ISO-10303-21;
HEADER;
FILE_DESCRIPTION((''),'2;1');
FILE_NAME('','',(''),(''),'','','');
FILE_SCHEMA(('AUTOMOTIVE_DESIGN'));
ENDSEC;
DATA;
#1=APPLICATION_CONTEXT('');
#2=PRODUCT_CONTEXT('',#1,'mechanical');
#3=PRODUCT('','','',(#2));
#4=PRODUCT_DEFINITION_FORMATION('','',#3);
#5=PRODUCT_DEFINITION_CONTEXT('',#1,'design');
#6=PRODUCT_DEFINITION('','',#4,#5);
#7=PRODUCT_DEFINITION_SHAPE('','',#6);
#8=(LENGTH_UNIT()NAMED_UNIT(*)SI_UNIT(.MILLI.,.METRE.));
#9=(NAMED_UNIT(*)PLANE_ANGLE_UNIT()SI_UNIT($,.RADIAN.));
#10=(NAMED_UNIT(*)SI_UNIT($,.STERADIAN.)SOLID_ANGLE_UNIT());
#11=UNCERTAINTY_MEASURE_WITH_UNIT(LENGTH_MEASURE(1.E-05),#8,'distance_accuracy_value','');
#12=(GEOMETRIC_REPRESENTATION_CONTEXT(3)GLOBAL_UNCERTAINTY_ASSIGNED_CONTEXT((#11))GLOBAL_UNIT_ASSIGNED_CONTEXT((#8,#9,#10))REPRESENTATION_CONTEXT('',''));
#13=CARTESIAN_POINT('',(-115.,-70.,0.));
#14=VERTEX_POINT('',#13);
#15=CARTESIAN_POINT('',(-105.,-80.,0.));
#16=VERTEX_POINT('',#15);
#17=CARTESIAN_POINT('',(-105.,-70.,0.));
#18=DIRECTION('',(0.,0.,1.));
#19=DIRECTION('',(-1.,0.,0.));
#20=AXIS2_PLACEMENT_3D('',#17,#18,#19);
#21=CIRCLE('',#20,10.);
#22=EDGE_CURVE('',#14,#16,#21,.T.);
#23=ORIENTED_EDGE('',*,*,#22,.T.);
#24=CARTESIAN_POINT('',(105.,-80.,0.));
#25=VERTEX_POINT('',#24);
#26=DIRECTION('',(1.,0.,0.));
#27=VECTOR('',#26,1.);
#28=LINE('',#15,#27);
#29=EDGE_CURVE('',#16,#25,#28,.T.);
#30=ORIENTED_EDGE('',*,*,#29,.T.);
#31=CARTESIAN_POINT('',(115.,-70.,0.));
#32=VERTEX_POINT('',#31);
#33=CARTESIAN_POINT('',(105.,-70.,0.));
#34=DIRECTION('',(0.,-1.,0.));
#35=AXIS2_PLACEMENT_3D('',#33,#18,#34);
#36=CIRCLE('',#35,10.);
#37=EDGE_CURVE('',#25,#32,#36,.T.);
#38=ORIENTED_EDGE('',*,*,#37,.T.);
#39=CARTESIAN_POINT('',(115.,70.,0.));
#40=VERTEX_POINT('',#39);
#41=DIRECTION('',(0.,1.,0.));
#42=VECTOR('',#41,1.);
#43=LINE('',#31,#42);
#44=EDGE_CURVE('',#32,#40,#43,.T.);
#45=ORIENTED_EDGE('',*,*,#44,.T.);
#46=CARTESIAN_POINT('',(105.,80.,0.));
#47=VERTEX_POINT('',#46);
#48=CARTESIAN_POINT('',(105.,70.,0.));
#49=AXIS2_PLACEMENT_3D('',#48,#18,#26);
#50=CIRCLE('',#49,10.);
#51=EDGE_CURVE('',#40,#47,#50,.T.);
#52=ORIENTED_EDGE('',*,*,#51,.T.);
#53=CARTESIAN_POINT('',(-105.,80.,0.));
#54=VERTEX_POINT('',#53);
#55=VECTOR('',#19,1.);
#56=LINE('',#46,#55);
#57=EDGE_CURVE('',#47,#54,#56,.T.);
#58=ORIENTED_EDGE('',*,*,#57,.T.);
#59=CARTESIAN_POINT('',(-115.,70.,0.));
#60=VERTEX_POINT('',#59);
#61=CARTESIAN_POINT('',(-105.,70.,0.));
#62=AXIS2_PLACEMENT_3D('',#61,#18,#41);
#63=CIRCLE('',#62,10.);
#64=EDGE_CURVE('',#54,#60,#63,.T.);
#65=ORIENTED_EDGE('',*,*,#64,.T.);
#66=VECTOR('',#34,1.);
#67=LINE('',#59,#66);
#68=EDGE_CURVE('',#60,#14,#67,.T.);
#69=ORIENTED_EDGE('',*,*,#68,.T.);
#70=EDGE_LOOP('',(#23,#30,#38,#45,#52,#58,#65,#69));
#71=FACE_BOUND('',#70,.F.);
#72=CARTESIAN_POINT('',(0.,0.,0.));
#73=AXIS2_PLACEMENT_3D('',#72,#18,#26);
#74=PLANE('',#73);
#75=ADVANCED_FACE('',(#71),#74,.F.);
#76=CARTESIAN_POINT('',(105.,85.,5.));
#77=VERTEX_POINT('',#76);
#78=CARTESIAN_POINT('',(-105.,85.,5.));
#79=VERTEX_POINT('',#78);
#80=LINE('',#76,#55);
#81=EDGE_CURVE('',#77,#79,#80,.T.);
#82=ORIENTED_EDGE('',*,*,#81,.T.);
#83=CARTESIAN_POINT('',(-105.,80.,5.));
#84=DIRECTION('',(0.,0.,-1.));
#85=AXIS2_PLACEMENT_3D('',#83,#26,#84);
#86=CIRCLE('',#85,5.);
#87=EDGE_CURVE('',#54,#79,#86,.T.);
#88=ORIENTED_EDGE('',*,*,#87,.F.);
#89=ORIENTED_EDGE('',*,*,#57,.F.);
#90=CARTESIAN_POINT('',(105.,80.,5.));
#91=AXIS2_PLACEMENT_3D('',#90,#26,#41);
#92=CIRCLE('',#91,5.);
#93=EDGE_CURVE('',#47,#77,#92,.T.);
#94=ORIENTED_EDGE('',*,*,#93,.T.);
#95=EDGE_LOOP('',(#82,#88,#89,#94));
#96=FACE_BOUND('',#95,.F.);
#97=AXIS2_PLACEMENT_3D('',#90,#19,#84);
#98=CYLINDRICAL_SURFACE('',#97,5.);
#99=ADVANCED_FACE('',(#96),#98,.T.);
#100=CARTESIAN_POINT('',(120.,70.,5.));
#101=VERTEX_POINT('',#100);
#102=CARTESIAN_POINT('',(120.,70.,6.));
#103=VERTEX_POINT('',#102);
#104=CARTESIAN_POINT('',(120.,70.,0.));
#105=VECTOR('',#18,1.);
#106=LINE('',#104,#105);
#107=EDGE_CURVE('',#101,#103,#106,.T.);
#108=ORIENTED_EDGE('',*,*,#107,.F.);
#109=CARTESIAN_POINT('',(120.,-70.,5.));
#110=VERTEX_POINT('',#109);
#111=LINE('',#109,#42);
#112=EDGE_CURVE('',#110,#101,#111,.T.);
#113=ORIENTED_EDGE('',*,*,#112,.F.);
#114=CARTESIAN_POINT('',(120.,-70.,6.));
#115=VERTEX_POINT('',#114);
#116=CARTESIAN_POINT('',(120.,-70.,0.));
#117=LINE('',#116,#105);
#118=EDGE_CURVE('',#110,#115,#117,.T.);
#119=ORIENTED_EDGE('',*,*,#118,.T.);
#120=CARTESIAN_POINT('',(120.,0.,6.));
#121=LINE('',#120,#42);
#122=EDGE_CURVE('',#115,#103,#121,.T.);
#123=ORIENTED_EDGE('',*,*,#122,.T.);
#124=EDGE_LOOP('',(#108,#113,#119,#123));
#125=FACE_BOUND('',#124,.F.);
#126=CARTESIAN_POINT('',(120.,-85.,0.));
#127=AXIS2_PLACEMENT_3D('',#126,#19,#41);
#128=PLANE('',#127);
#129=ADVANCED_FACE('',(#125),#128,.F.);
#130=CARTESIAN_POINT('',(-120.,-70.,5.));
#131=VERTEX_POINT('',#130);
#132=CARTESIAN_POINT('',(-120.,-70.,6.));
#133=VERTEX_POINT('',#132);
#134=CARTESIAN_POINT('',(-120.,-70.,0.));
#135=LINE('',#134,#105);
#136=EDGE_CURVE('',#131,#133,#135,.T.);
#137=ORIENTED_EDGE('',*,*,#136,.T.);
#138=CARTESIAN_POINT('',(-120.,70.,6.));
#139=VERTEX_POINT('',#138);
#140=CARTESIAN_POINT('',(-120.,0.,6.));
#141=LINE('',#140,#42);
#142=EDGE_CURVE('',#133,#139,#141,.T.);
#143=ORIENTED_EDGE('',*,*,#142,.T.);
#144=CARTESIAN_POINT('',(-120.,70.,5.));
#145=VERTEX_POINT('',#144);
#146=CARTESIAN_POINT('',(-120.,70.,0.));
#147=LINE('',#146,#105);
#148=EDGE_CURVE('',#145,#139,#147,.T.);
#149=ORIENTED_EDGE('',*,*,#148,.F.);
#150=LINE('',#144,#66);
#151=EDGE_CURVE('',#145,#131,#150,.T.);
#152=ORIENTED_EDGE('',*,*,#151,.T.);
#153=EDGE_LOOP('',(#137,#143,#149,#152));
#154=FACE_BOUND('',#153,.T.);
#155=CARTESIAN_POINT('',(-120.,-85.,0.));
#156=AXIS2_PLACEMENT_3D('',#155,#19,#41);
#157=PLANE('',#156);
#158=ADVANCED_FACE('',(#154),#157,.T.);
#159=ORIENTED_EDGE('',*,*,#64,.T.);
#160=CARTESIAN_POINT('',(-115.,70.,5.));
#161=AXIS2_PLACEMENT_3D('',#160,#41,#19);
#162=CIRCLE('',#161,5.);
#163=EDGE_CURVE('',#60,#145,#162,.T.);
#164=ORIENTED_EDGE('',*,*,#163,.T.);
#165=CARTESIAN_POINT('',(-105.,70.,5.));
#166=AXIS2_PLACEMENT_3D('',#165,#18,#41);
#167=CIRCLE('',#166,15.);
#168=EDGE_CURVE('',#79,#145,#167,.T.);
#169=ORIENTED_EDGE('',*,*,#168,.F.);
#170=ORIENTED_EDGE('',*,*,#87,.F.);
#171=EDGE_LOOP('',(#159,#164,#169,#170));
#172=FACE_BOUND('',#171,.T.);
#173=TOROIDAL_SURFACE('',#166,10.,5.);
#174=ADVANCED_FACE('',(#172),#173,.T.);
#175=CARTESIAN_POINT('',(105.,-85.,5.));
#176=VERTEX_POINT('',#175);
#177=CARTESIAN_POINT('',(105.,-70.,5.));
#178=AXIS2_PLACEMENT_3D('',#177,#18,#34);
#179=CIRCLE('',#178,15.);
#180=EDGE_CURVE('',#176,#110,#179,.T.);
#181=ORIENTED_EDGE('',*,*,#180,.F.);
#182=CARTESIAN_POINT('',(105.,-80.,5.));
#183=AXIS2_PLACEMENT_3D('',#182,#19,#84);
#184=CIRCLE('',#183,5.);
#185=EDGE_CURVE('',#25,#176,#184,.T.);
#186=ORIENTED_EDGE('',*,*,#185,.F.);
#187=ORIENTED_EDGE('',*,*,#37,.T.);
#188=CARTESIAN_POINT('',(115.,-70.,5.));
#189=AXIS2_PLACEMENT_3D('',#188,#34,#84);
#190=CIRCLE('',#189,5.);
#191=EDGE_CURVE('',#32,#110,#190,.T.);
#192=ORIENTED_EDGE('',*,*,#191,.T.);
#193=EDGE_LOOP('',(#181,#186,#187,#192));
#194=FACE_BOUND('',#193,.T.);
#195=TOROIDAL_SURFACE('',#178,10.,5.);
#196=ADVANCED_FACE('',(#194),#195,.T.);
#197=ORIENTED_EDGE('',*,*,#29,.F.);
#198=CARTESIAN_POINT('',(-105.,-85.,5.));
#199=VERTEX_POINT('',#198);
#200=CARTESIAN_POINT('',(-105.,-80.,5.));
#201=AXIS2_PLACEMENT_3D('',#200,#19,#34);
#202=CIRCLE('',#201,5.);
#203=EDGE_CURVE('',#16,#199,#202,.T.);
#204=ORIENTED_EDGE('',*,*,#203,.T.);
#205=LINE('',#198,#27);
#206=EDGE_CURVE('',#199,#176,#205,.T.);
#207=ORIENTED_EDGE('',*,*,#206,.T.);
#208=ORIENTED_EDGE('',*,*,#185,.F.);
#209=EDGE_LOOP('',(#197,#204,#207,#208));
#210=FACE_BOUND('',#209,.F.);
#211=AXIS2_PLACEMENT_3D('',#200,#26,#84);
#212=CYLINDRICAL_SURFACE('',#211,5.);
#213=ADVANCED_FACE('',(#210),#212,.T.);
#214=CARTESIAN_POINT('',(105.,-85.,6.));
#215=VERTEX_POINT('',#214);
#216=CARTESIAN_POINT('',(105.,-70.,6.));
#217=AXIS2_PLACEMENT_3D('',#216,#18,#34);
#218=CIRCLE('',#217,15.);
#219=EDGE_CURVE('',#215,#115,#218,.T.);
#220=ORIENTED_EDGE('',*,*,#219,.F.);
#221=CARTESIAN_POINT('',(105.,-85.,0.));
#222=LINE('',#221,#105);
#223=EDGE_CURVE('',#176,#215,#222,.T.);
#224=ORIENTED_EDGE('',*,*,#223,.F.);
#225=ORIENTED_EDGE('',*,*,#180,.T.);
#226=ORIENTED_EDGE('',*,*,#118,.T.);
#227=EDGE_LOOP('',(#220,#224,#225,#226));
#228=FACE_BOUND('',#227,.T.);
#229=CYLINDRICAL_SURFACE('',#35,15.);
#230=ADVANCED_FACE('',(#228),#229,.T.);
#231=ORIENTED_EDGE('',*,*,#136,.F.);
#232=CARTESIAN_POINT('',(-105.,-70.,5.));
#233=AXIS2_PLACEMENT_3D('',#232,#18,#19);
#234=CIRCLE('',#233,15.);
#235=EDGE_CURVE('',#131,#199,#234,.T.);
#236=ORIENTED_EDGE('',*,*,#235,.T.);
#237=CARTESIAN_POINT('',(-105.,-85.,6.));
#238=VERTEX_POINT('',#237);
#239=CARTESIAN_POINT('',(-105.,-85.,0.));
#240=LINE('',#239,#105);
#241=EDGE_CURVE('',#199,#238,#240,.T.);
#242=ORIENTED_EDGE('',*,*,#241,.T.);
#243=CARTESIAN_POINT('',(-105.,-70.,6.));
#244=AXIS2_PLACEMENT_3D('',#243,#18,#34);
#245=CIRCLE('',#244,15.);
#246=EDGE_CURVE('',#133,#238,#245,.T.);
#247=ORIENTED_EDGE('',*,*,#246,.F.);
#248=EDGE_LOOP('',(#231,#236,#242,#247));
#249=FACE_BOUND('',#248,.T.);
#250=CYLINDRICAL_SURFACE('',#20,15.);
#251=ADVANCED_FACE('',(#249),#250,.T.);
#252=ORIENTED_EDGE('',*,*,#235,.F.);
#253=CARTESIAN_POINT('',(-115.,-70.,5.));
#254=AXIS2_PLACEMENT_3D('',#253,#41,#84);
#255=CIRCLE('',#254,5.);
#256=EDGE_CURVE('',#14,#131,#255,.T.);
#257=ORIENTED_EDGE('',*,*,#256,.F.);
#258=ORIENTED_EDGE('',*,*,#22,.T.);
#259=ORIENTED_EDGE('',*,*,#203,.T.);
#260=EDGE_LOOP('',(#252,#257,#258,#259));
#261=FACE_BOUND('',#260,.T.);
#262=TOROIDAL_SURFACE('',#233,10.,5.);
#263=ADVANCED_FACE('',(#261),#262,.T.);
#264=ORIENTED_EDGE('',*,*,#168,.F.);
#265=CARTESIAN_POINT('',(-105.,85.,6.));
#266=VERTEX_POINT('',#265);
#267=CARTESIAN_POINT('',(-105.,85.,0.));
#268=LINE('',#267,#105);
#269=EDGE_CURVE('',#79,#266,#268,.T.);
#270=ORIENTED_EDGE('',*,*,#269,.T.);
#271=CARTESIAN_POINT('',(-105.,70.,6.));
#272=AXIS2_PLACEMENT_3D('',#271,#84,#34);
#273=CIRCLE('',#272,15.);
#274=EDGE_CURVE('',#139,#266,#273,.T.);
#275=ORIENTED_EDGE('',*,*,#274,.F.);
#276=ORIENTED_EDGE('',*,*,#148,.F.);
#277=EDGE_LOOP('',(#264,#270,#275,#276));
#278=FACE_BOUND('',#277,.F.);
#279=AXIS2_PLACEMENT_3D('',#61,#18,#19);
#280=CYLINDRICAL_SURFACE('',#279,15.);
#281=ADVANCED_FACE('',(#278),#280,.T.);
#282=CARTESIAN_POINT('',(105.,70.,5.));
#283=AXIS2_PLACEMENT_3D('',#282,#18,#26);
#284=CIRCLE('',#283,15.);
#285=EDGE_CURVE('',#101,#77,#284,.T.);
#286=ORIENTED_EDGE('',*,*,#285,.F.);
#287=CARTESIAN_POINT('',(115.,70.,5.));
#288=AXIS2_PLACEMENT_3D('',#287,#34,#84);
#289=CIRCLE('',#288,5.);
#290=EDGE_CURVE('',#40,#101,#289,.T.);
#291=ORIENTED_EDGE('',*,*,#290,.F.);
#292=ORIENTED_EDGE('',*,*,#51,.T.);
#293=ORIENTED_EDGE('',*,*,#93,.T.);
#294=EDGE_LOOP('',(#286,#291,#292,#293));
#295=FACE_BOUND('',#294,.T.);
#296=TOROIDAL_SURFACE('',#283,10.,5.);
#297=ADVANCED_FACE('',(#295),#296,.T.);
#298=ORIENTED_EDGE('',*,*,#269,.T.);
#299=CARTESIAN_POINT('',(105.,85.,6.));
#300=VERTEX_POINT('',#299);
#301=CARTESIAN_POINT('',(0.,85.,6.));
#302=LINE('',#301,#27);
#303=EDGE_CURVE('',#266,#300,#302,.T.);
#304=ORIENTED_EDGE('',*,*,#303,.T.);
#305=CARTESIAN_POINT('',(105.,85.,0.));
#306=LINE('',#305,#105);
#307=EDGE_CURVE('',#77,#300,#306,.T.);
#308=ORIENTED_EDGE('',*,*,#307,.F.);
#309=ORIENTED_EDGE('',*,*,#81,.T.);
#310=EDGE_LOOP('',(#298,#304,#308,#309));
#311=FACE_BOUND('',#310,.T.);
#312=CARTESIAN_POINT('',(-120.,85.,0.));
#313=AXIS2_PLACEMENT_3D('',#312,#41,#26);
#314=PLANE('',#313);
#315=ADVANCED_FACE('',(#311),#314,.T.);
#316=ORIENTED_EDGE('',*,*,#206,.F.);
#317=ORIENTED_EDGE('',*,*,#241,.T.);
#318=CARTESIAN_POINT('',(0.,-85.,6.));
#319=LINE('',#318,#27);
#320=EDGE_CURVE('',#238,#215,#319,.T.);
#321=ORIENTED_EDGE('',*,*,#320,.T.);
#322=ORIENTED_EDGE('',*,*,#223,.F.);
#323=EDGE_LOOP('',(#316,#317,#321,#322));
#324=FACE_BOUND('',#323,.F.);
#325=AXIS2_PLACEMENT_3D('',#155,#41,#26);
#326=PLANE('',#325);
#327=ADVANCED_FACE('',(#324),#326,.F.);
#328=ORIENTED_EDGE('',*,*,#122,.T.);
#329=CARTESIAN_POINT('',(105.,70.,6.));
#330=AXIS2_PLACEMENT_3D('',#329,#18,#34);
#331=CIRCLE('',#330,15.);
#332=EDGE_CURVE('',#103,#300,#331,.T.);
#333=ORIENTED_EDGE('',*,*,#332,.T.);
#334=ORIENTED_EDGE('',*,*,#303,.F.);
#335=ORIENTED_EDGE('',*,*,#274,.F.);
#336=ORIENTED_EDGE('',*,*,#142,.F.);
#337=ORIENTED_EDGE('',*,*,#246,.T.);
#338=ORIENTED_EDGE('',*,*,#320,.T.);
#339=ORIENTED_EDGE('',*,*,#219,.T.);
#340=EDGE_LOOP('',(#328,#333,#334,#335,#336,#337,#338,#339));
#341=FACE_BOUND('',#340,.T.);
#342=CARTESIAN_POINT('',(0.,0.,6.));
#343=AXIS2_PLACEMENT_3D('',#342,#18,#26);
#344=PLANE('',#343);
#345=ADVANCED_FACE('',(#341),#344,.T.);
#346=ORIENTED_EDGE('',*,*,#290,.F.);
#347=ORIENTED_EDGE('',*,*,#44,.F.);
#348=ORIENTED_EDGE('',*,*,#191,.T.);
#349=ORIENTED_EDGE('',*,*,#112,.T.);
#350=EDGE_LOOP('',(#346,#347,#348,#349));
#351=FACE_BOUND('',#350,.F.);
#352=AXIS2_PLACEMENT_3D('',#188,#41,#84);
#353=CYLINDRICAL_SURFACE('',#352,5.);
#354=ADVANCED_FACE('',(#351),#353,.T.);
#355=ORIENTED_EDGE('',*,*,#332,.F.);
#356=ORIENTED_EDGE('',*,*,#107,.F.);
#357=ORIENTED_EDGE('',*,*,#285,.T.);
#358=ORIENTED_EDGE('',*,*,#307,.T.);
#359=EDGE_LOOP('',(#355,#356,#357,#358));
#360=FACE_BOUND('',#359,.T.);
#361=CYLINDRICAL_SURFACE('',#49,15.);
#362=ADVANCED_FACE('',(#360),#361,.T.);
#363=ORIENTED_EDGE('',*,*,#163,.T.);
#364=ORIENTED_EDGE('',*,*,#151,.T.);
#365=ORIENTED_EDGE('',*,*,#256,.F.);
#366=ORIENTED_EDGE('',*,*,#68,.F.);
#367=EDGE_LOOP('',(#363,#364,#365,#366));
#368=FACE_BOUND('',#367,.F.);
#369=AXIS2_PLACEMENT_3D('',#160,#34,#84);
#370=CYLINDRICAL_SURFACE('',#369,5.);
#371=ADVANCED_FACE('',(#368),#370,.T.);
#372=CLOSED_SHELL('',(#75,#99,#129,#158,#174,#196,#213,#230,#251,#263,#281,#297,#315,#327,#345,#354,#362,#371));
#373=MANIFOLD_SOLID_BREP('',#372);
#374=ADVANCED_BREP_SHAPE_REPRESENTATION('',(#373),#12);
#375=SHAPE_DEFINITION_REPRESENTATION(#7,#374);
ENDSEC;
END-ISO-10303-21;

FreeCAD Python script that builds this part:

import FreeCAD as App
import Part
import Sketcher

V = App.Vector


def edges_at(feature, points):
    """Names of the edges that pass closest to the given points."""
    edges = feature.Shape.Edges
    near = lambda p: min(range(len(edges)), key=lambda i: edges[i].distToShape(Part.Vertex(*p))[0])
    return sorted({f"Edge{near(p) + 1}" for p in points})

doc = App.newDocument("Part")
params = doc.addObject("Spreadsheet::Sheet", "Params")
for row, (alias, value) in enumerate([
    ("sketch1_width", "240 mm"),
    ("sketch1_height", "170 mm"),
    ("pad1_length", "6 mm"),
    ("fillet_radius", "15 mm"),
    ("fillet2_radius", "5 mm"),
], start=1):
    params.set(f"A{row}", alias)
    params.set(f"B{row}", "=" + value)
    params.setAlias(f"B{row}", alias)

body = doc.addObject("PartDesign::Body", "Body")

sketch1 = body.newObject("Sketcher::SketchObject", "Sketch")
sketch1.AttachmentSupport = (doc.getObject("XY_Plane"), [""])
sketch1.MapMode = "FlatFace"
sketch1.addGeometry([
    Part.LineSegment(V(-120, 85, 0), V(-120, -85, 0)),
    Part.LineSegment(V(-120, -85, 0), V(120, -85, 0)),
    Part.LineSegment(V(120, -85, 0), V(120, 85, 0)),
    Part.LineSegment(V(120, 85, 0), V(-120, 85, 0)),
], False)
sketch1.addConstraint([
    Sketcher.Constraint("Coincident", 0, 2, 1, 1),
    Sketcher.Constraint("Coincident", 1, 2, 2, 1),
    Sketcher.Constraint("Coincident", 2, 2, 3, 1),
    Sketcher.Constraint("Coincident", 3, 2, 0, 1),
    Sketcher.Constraint("Vertical", 0),
    Sketcher.Constraint("Horizontal", 1),
    Sketcher.Constraint("Vertical", 2),
    Sketcher.Constraint("Horizontal", 3),
    Sketcher.Constraint("Symmetric", 0, 2, 2, 2, -1, 1),
    Sketcher.Constraint("DistanceX", 1, 1, 1, 2, 240.0),
    Sketcher.Constraint("DistanceY", 0, 2, 0, 1, 170.0),
])
sketch1.setExpression("Constraints[9]", "Params.sketch1_width")
sketch1.setExpression("Constraints[10]", "Params.sketch1_height")
pad1 = body.newObject("PartDesign::Pad", "Pad")
pad1.Profile = sketch1
pad1.setExpression("Length", "Params.pad1_length")
doc.recompute()

fillet = body.newObject("PartDesign::Fillet", "Fillet")
fillet.Base = (pad1, edges_at(pad1, [
    (-120, -85, 3),
    (-120, 85, 3),
    (120, 85, 3),
    (120, -85, 3),
]))
fillet.setExpression("Radius", "Params.fillet_radius")
doc.recompute()

fillet2 = body.newObject("PartDesign::Fillet", "Fillet001")
fillet2.Base = (fillet, edges_at(fillet, [
    (120, 0, 0),
    (115.607, -80.607, 0),
    (115.607, 80.607, 0),
    (0, -85, 0),
    (0, 85, 0),
    (-115.607, -80.607, 0),
    (-115.607, 80.607, 0),
    (-120, 0, 0),
]))
fillet2.setExpression("Radius", "Params.fillet2_radius")

doc.recompute()
